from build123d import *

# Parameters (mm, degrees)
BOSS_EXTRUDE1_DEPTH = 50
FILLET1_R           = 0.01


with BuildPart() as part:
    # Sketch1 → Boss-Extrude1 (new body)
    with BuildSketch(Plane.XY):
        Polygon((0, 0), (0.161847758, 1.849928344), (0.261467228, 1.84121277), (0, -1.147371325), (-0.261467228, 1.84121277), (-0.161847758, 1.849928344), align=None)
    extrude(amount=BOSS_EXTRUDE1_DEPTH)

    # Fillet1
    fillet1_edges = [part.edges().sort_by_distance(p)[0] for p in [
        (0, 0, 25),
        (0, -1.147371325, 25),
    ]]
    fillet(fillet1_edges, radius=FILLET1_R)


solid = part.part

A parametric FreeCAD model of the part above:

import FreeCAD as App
import Part
import Sketcher
from FreeCAD import Vector
Q = App.Units.Quantity


def edges_at(feature, points):
    """Names of the edges that pass closest to the given points."""
    edges = feature.Shape.Edges
    near = lambda p: min(range(len(edges)), key=lambda i: edges[i].distToShape(Part.Vertex(*p))[0])
    return sorted({f"Edge{near(p) + 1}" for p in points})


def add_polygon(sketch, points):
    """Adds a closed chain of lines whose ends are joined by coincident constraints."""
    first, n = sketch.GeometryCount, len(points)
    for a, b in zip(points, points[1:] + points[:1]):
        sketch.addGeometry(Part.LineSegment(App.Vector(*a, 0), App.Vector(*b, 0)), False)
    for i in range(n):
        sketch.addConstraint(Sketcher.Constraint("Coincident", first + i, 2, first + (i + 1) % n, 1))

doc = App.newDocument("Part")
body = doc.addObject("PartDesign::Body", "Body")

# Sketch on XY plane
sketch1 = body.newObject("Sketcher::SketchObject", "Sketch")
sketch1.AttachmentSupport = (doc.getObject("XY_Plane"), [""])
sketch1.MapMode = "FlatFace"
add_polygon(sketch1, [(0.16, 1.85), (0, 0), (-0.16, 1.85), (-0.26, 1.84), (0, -1.15), (0.26, 1.84)])  # lines 0-5
sketch1.addConstraint(Sketcher.Constraint("Coincident", 0, 2, -1, 1))
sketch1.addConstraint(Sketcher.Constraint("Symmetric", 2, 2, 4, 2, -2))
sketch1.addConstraint(Sketcher.Constraint("Symmetric", 1, 2, 5, 2, -2))
sketch1.addConstraint(Sketcher.Constraint("PointOnObject", 3, 2, -2))
sketch1.addConstraint(Sketcher.Constraint("Perpendicular", 1, 2))
sketch1.addConstraint(Sketcher.Constraint("Perpendicular", 2, 3))
sketch1.addConstraint(Sketcher.Constraint("Angle", 0, Q("-95 deg")))
sketch1.addConstraint(Sketcher.Constraint("Distance", 3, Q("3 mm")))
sketch1.addConstraint(Sketcher.Constraint("Distance", 2, Q("0.1 mm")))
pad1 = body.newObject("PartDesign::Pad", "Pad")
pad1.Profile = sketch1
pad1.Length = 50
doc.recompute()

fillet = body.newObject("PartDesign::Fillet", "Fillet")
fillet.Base = (pad1, edges_at(pad1, [(0, 0, 25), (0, -1.147, 25)]))
fillet.Radius = 0.01

doc.recompute()
